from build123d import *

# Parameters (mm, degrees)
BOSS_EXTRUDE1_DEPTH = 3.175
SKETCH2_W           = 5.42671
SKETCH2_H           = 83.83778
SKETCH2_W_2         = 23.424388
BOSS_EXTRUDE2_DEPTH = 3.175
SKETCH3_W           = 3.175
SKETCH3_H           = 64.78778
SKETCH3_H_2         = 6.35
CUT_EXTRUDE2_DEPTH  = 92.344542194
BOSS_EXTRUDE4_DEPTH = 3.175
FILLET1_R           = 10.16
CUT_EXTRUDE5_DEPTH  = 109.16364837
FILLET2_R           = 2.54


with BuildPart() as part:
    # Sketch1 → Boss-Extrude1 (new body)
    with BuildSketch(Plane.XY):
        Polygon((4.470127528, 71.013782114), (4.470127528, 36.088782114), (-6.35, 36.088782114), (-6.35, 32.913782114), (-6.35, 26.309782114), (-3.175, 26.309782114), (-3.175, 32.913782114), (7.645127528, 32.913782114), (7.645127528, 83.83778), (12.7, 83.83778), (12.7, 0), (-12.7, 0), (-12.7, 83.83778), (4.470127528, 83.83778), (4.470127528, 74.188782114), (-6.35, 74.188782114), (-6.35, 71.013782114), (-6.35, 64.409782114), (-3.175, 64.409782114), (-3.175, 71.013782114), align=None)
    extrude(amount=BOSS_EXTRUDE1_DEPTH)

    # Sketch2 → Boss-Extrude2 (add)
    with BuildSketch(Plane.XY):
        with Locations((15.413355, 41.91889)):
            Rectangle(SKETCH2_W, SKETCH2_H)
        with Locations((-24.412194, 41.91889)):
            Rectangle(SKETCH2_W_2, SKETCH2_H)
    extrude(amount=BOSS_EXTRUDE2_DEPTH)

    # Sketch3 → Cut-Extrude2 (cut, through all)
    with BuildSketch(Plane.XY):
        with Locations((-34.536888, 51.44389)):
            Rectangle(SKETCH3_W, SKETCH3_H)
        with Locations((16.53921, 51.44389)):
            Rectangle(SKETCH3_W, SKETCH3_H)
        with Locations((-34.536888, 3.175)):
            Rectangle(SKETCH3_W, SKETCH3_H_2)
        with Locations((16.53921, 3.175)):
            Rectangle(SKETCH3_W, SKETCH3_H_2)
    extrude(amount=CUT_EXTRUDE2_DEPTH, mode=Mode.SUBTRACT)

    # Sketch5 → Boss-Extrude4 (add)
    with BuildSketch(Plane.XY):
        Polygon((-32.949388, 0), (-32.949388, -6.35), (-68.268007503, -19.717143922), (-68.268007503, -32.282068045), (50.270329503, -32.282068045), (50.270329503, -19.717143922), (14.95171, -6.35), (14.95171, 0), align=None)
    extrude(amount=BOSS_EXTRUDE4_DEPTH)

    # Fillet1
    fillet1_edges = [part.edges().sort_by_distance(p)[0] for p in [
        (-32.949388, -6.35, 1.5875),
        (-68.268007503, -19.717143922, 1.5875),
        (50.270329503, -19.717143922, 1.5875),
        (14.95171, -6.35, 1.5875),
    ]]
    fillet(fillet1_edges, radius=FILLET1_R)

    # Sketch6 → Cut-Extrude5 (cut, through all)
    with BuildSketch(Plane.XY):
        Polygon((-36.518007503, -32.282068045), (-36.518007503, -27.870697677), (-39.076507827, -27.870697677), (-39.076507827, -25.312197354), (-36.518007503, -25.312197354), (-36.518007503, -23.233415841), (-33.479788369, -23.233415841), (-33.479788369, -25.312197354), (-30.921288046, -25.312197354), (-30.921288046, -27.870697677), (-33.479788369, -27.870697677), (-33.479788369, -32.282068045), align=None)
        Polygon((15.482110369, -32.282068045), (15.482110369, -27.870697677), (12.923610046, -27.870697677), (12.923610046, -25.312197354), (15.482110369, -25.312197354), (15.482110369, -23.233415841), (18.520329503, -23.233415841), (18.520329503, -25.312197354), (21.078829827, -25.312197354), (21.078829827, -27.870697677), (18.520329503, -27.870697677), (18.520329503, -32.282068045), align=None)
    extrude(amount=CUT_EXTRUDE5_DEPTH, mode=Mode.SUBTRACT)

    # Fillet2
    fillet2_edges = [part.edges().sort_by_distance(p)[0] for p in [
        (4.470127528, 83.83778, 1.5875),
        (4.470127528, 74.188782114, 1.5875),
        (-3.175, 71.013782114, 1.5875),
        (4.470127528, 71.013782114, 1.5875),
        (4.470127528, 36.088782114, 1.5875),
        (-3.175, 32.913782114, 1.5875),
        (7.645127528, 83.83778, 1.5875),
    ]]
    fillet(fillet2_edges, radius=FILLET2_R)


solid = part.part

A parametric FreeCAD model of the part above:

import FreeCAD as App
import Part
import Sketcher

V = App.Vector
Q = App.Units.Quantity


def edges_at(feature, points):
    """Names of the edges that pass closest to the given points."""
    edges = feature.Shape.Edges
    near = lambda p: min(range(len(edges)), key=lambda i: edges[i].distToShape(Part.Vertex(*p))[0])
    return sorted({f"Edge{near(p) + 1}" for p in points})


def add_polygon(sketch, points):
    """Adds a closed chain of lines whose ends are joined by coincident constraints."""
    first, n = sketch.GeometryCount, len(points)
    for a, b in zip(points, points[1:] + points[:1]):
        sketch.addGeometry(Part.LineSegment(App.Vector(*a, 0), App.Vector(*b, 0)), False)
    for i in range(n):
        sketch.addConstraint(Sketcher.Constraint("Coincident", first + i, 2, first + (i + 1) % n, 1))

doc = App.newDocument("Part")
params = doc.addObject("Spreadsheet::Sheet", "Params")
for row, (alias, value) in enumerate([
    ("sketch1_width", "1 in"),
    ("sketch1_height", "0.26 in"),
    ("sketch1_width2", "0.125 in"),
    ("sketch1_height2", "1.375 in"),
    ("pad1_length", "0.125 in"),
    ("pad2_length", "0.125 in"),
    ("sketch3_height", "0.25 in"),
    ("sketch3_width", "0.125 in"),
    ("sketch4_height", "0.25 in"),
    ("pad3_length", "0.125 in"),
    ("fillet_radius", "0.4 in"),
    ("fillet2_radius", "0.1 in"),
], start=1):
    params.set(f"A{row}", alias)
    params.set(f"B{row}", "=" + value)
    params.setAlias(f"B{row}", alias)

body = doc.addObject("PartDesign::Body", "Body")

sketch1 = body.newObject("Sketcher::SketchObject", "Sketch")
sketch1.AttachmentSupport = (doc.getObject("XY_Plane"), [""])
sketch1.MapMode = "FlatFace"
add_polygon(sketch1, [(4.470128, 36.088782), (4.470128, 71.013782), (-3.175, 71.013782), (-3.175, 64.409782), (-6.35, 64.409782), (-6.35, 74.188782), (4.470128, 74.188782), (4.470128, 83.83778), (-12.7, 83.83778), (-12.7, 0), (12.7, 0), (12.7, 83.83778), (7.645128, 83.83778), (7.645128, 32.913782), (-3.175, 32.913782), (-3.175, 26.309782), (-6.35, 26.309782), (-6.35, 36.088782)])
sketch1.addConstraint([
    Sketcher.Constraint("Vertical", 0),
    Sketcher.Constraint("Horizontal", 1),
    Sketcher.Constraint("Vertical", 2),
    Sketcher.Constraint("Horizontal", 3),
    Sketcher.Constraint("Vertical", 4),
    Sketcher.Constraint("Horizontal", 5),
    Sketcher.Constraint("Vertical", 6),
    Sketcher.Constraint("Horizontal", 7),
    Sketcher.Constraint("Vertical", 8),
    Sketcher.Constraint("Horizontal", 9),
    Sketcher.Constraint("Vertical", 10),
    Sketcher.Constraint("Horizontal", 11),
    Sketcher.Constraint("Vertical", 12),
    Sketcher.Constraint("Horizontal", 13),
    Sketcher.Constraint("Vertical", 14),
    Sketcher.Constraint("Horizontal", 15),
    Sketcher.Constraint("Vertical", 16),
    Sketcher.Constraint("Horizontal", 17),
    Sketcher.Constraint("Symmetric", 8, 2, 9, 2, -1, 1),
    Sketcher.Constraint("Horizontal", 7, 2, 10, 2),
    Sketcher.Constraint("Vertical", 0, 2, 5, 2),
    Sketcher.Constraint("Vertical", 2, 2, 13, 2),
    Sketcher.Constraint("Vertical", 4, 2, 15, 2),
    Sketcher.Constraint("Equal", 5, 13),
    Sketcher.Constraint("Equal", 2, 14),
    Sketcher.Constraint("Equal", 4, 16),
    Sketcher.Constraint("DistanceX", 9, 1, 9, 2, Q("1 in")),
    Sketcher.Constraint("DistanceY", 2, 2, 2, 1, Q("0.26 in")),
    Sketcher.Constraint("DistanceY", 12, 2, 0, 2, Q("1.5 in")),
    Sketcher.Constraint("DistanceX", 3, 2, 3, 1, Q("0.125 in")),
    Sketcher.Constraint("DistanceY", 0, 1, 0, 2, Q("1.375 in")),
    Sketcher.Constraint("DistanceX", 3, 2, -1, 1, Q("0.25 in")),
    Sketcher.Constraint("DistanceY", 8, 2, 8, 1, Q("3.3007 in")),
    Sketcher.Constraint("DistanceX", 1, 2, 1, 1, Q("7.645128 mm")),
    Sketcher.Constraint("DistanceY", 6, 1, 6, 2, Q("9.648998 mm")),
])
sketch1.setExpression("Constraints[44]", "Params.sketch1_width")
sketch1.setExpression("Constraints[45]", "Params.sketch1_height")
sketch1.setExpression("Constraints[47]", "Params.sketch1_width2")
sketch1.setExpression("Constraints[48]", "Params.sketch1_height2")
pad1 = body.newObject("PartDesign::Pad", "Pad")
pad1.Profile = sketch1
pad1.setExpression("Length", "Params.pad1_length")

sketch2 = body.newObject("Sketcher::SketchObject", "Sketch001")
sketch2.AttachmentSupport = (doc.getObject("XY_Plane"), [""])
sketch2.MapMode = "FlatFace"
add_polygon(sketch2, [(12.7, 83.83778), (12.7, 0), (18.12671, 0), (18.12671, 83.83778)])
add_polygon(sketch2, [(-36.124388, 83.83778), (-36.124388, 0), (-12.7, 0), (-12.7, 83.83778)])
sketch2.addConstraint([
    Sketcher.Constraint("Vertical", 0),
    Sketcher.Constraint("Horizontal", 1),
    Sketcher.Constraint("Vertical", 2),
    Sketcher.Constraint("Horizontal", 3),
    Sketcher.Constraint("Vertical", 4),
    Sketcher.Constraint("Horizontal", 5),
    Sketcher.Constraint("Vertical", 6),
    Sketcher.Constraint("Horizontal", 7),
    Sketcher.Constraint("Symmetric", 0, 2, 5, 2, -1, 1),
    Sketcher.Constraint("PointOnObject", 0, 2, -1),
    Sketcher.Constraint("Horizontal", 3, 2, 6, 2),
    Sketcher.Constraint("DistanceX", 5, 2, 0, 2, Q("1 in")),
    Sketcher.Constraint("DistanceY", 0, 2, 0, 1, Q("3.3007 in")),
    Sketcher.Constraint("DistanceX", 1, 1, 1, 2, Q("5.42671 mm")),
    Sketcher.Constraint("DistanceX", 5, 1, 5, 2, Q("23.424388 mm")),
])
pad2 = body.newObject("PartDesign::Pad", "Pad001")
pad2.Profile = sketch2
pad2.setExpression("Length", "Params.pad2_length")

sketch3 = body.newObject("Sketcher::SketchObject", "Sketch002")
sketch3.AttachmentSupport = (doc.getObject("XY_Plane"), [""])
sketch3.MapMode = "FlatFace"
add_polygon(sketch3, [(-36.124388, 83.83778), (-36.124388, 19.05), (-32.949388, 19.05), (-32.949388, 83.83778)])
add_polygon(sketch3, [(14.95171, 83.83778), (14.95171, 19.05), (18.12671, 19.05), (18.12671, 83.83778)])
add_polygon(sketch3, [(-36.124388, 6.35), (-36.124388, 0), (-32.949388, 0), (-32.949388, 6.35)])
add_polygon(sketch3, [(14.95171, 6.35), (14.95171, 0), (18.12671, 0), (18.12671, 6.35)])
sketch3.addConstraint([
    Sketcher.Constraint("Vertical", 0),
    Sketcher.Constraint("Horizontal", 1),
    Sketcher.Constraint("Vertical", 2),
    Sketcher.Constraint("Horizontal", 3),
    Sketcher.Constraint("Vertical", 4),
    Sketcher.Constraint("Horizontal", 5),
    Sketcher.Constraint("Vertical", 6),
    Sketcher.Constraint("Horizontal", 7),
    Sketcher.Constraint("Vertical", 8),
    Sketcher.Constraint("Horizontal", 9),
    Sketcher.Constraint("Vertical", 10),
    Sketcher.Constraint("Horizontal", 11),
    Sketcher.Constraint("Vertical", 12),
    Sketcher.Constraint("Horizontal", 13),
    Sketcher.Constraint("Vertical", 14),
    Sketcher.Constraint("Horizontal", 15),
    Sketcher.Constraint("PointOnObject", 8, 2, -1),
    Sketcher.Constraint("PointOnObject", 12, 2, -1),
    Sketcher.Constraint("Horizontal", 1, 2, 4, 2),
    Sketcher.Constraint("Horizontal", 3, 2, 6, 2),
    Sketcher.Constraint("Horizontal", 11, 2, 14, 2),
    Sketcher.Constraint("Vertical", 3, 2, 8, 2),
    Sketcher.Constraint("Vertical", 2, 2, 9, 2),
    Sketcher.Constraint("Vertical", 7, 2, 12, 2),
    Sketcher.Constraint("Vertical", 6, 2, 13, 2),
    Sketcher.Constraint("Equal", 3, 5),
    Sketcher.Constraint("DistanceY", 8, 2, 8, 1, Q("0.25 in")),
    Sketcher.Constraint("DistanceY", 10, 2, 1, 2, Q("0.5 in")),
    Sketcher.Constraint("DistanceX", 1, 1, 1, 2, Q("0.125 in")),
    Sketcher.Constraint("DistanceY", 0, 2, 0, 1, Q("2.5507 in")),
    Sketcher.Constraint("DistanceX", 0, 2, 4, 2, Q("51.076098 mm")),
    Sketcher.Constraint("DistanceX", 0, 2, -1, 1, Q("36.124388 mm")),
])
sketch3.setExpression("Constraints[42]", "Params.sketch3_height")
sketch3.setExpression("Constraints[44]", "Params.sketch3_width")
pocket1 = body.newObject("PartDesign::Pocket", "Pocket")
pocket1.Profile = sketch3
pocket1.Type = "ThroughAll"
pocket1.Reversed = True

sketch4 = body.newObject("Sketcher::SketchObject", "Sketch003")
sketch4.AttachmentSupport = (doc.getObject("XY_Plane"), [""])
sketch4.MapMode = "FlatFace"
add_polygon(sketch4, [(-32.949388, 0), (-32.949388, -6.35), (-68.268008, -19.717144), (-68.268008, -32.282068), (50.27033, -32.282068), (50.27033, -19.717144), (14.95171, -6.35), (14.95171, 0)])
sketch4.addConstraint([
    Sketcher.Constraint("Vertical", 0),
    Sketcher.Constraint("Vertical", 2),
    Sketcher.Constraint("Horizontal", 3),
    Sketcher.Constraint("Vertical", 4),
    Sketcher.Constraint("Vertical", 6),
    Sketcher.Constraint("Horizontal", 7),
    Sketcher.Constraint("PointOnObject", 6, 2, -1),
    Sketcher.Constraint("Horizontal", 1, 2, 4, 2),
    Sketcher.Constraint("Horizontal", 0, 2, 5, 2),
    Sketcher.Constraint("Equal", 1, 5),
    Sketcher.Constraint("DistanceY", 0, 2, 0, 1, Q("0.25 in")),
    Sketcher.Constraint("DistanceX", 3, 1, 3, 2, Q("118.538337 mm")),
    Sketcher.Constraint("DistanceX", 7, 2, 7, 1, Q("47.901098 mm")),
    Sketcher.Constraint("DistanceY", 2, 2, 2, 1, Q("12.564924 mm")),
    Sketcher.Constraint("DistanceY", 2, 2, -1, 1, Q("32.282068 mm")),
    Sketcher.Constraint("DistanceX", -1, 1, 3, 2, Q("50.27033 mm")),
])
sketch4.setExpression("Constraints[18]", "Params.sketch4_height")
pad3 = body.newObject("PartDesign::Pad", "Pad002")
pad3.Profile = sketch4
pad3.setExpression("Length", "Params.pad3_length")
doc.recompute()

fillet = body.newObject("PartDesign::Fillet", "Fillet")
fillet.Base = (pad3, edges_at(pad3, [
    (-32.949, -6.35, 1.587),
    (-68.268, -19.717, 1.587),
    (50.27, -19.717, 1.587),
    (14.952, -6.35, 1.587),
]))
fillet.setExpression("Radius", "Params.fillet_radius")

sketch5 = body.newObject("Sketcher::SketchObject", "Sketch004")
sketch5.AttachmentSupport = (doc.getObject("XY_Plane"), [""])
sketch5.MapMode = "FlatFace"
add_polygon(sketch5, [(-36.518008, -27.870698), (-36.518008, -32.282068), (-33.479788, -32.282068), (-33.479788, -27.870698), (-30.921288, -27.870698), (-30.921288, -25.312197), (-33.479788, -25.312197), (-33.479788, -23.233416), (-36.518008, -23.233416), (-36.518008, -25.312197), (-39.076508, -25.312197), (-39.076508, -27.870698)])
add_polygon(sketch5, [(15.48211, -27.870698), (15.48211, -32.282068), (18.52033, -32.282068), (18.52033, -27.870698), (21.07883, -27.870698), (21.07883, -25.312197), (18.52033, -25.312197), (18.52033, -23.233416), (15.48211, -23.233416), (15.48211, -25.312197), (12.92361, -25.312197), (12.92361, -27.870698)])
sketch5.addConstraint([
    Sketcher.Constraint("Vertical", 0),
    Sketcher.Constraint("Horizontal", 1),
    Sketcher.Constraint("Vertical", 2),
    Sketcher.Constraint("Horizontal", 3),
    Sketcher.Constraint("Vertical", 4),
    Sketcher.Constraint("Horizontal", 5),
    Sketcher.Constraint("Vertical", 6),
    Sketcher.Constraint("Horizontal", 7),
    Sketcher.Constraint("Vertical", 8),
    Sketcher.Constraint("Horizontal", 9),
    Sketcher.Constraint("Vertical", 10),
    Sketcher.Constraint("Horizontal", 11),
    Sketcher.Constraint("Vertical", 12),
    Sketcher.Constraint("Horizontal", 13),
    Sketcher.Constraint("Vertical", 14),
    Sketcher.Constraint("Horizontal", 15),
    Sketcher.Constraint("Vertical", 16),
    Sketcher.Constraint("Horizontal", 17),
    Sketcher.Constraint("Vertical", 18),
    Sketcher.Constraint("Horizontal", 19),
    Sketcher.Constraint("Vertical", 20),
    Sketcher.Constraint("Horizontal", 21),
    Sketcher.Constraint("Vertical", 22),
    Sketcher.Constraint("Horizontal", 23),
    Sketcher.Constraint("Horizontal", 5, 2, 8, 2),
    Sketcher.Constraint("Horizontal", 3, 2, 10, 2),
    Sketcher.Constraint("Horizontal", 1, 2, 12, 2),
    Sketcher.Constraint("Horizontal", 11, 2, 14, 2),
    Sketcher.Constraint("Horizontal", 9, 2, 16, 2),
    Sketcher.Constraint("Horizontal", 7, 2, 18, 2),
    Sketcher.Constraint("Horizontal", 17, 2, 20, 2),
    Sketcher.Constraint("Horizontal", 15, 2, 22, 2),
    Sketcher.Constraint("Vertical", 2, 2, 5, 2),
    Sketcher.Constraint("Vertical", 0, 2, 7, 2),
    Sketcher.Constraint("Vertical", 14, 2, 17, 2),
    Sketcher.Constraint("Vertical", 12, 2, 19, 2),
    Sketcher.Constraint("Equal", 5, 9),
    Sketcher.Constraint("Equal", 7, 13),
    Sketcher.Constraint("Equal", 11, 15),
    Sketcher.Constraint("Equal", 17, 21),
    Sketcher.Constraint("Equal", 23, 4),
    Sketcher.Constraint("DistanceX", 3, 1, 3, 2, Q("2.5585 mm")),
    Sketcher.Constraint("DistanceX", 1, 1, 1, 2, Q("3.038219 mm")),
    Sketcher.Constraint("DistanceY", 0, 2, 0, 1, Q("4.41137 mm")),
    Sketcher.Constraint("DistanceY", 6, 1, 6, 2, Q("2.078782 mm")),
    Sketcher.Constraint("DistanceX", 3, 2, 12, 2, Q("46.403398 mm")),
    Sketcher.Constraint("DistanceY", 0, 2, -1, 1, Q("32.282068 mm")),
    Sketcher.Constraint("DistanceX", 1, 2, -1, 1, Q("33.479788 mm")),
])
pocket2 = body.newObject("PartDesign::Pocket", "Pocket001")
pocket2.Profile = sketch5
pocket2.Type = "ThroughAll"
pocket2.Reversed = True
doc.recompute()

fillet2 = body.newObject("PartDesign::Fillet", "Fillet001")
fillet2.Base = (pocket2, edges_at(pocket2, [
    (4.47, 83.838, 1.587),
    (4.47, 74.189, 1.587),
    (-3.175, 71.014, 1.587),
    (4.47, 71.014, 1.587),
    (4.47, 36.089, 1.587),
    (-3.175, 32.914, 1.587),
    (7.645, 83.838, 1.587),
]))
fillet2.setExpression("Radius", "Params.fillet2_radius")

doc.recompute()
